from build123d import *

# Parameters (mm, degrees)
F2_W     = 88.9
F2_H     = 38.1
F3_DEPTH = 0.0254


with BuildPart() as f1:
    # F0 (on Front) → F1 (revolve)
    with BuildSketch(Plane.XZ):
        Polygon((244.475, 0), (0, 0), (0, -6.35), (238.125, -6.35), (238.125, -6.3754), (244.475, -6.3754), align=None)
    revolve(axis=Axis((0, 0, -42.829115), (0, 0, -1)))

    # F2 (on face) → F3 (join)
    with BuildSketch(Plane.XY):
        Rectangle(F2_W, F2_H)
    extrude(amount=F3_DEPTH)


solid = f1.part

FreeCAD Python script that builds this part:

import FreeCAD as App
import Part
import Sketcher

V = App.Vector
Q = App.Units.Quantity


def add_polygon(sketch, points):
    """Adds a closed chain of lines whose ends are joined by coincident constraints."""
    first, n = sketch.GeometryCount, len(points)
    for a, b in zip(points, points[1:] + points[:1]):
        sketch.addGeometry(Part.LineSegment(App.Vector(*a, 0), App.Vector(*b, 0)), False)
    for i in range(n):
        sketch.addConstraint(Sketcher.Constraint("Coincident", first + i, 2, first + (i + 1) % n, 1))

doc = App.newDocument("Part")
params = doc.addObject("Spreadsheet::Sheet", "Params")
for row, (alias, value) in enumerate([
    ("sketch1_width", "0.25 in"),
    ("sketch1_width2", "9.625 in"),
    ("sketch1_height", "0.001 in"),
    ("revolution_angle", "360 deg"),
    ("sketch2_width", "3.5 in"),
    ("sketch2_height", "1.5 in"),
    ("pad1_length", "0.001 in"),
], start=1):
    params.set(f"A{row}", alias)
    params.set(f"B{row}", "=" + value)
    params.setAlias(f"B{row}", alias)

body = doc.addObject("PartDesign::Body", "Body")

sketch1 = body.newObject("Sketcher::SketchObject", "Sketch")
sketch1.AttachmentSupport = (doc.getObject("XZ_Plane"), [""])
sketch1.MapMode = "FlatFace"
add_polygon(sketch1, [(244.475, 0), (0, 0), (0, -6.35), (238.125, -6.35), (238.125, -6.3754), (244.475, -6.3754)])
sketch1.addConstraint([
    Sketcher.Constraint("Horizontal", 0),
    Sketcher.Constraint("Vertical", 1),
    Sketcher.Constraint("Horizontal", 2),
    Sketcher.Constraint("Vertical", 3),
    Sketcher.Constraint("Horizontal", 4),
    Sketcher.Constraint("Vertical", 5),
    Sketcher.Constraint("Coincident", 0, 2, -1, 1),
    Sketcher.Constraint("Equal", 4, 1),
    Sketcher.Constraint("DistanceX", 4, 1, 4, 2, Q("0.25 in")),
    Sketcher.Constraint("DistanceX", 0, 2, 0, 1, Q("9.625 in")),
    Sketcher.Constraint("DistanceY", 3, 2, 3, 1, Q("0.001 in")),
])
sketch1.setExpression("Constraints[14]", "Params.sketch1_width")
sketch1.setExpression("Constraints[15]", "Params.sketch1_width2")
sketch1.setExpression("Constraints[16]", "Params.sketch1_height")
revolution = body.newObject("PartDesign::Revolution", "Revolution")
revolution.Profile = sketch1
revolution.ReferenceAxis = (sketch1, ["V_Axis"])
revolution.setExpression("Angle", "Params.revolution_angle")

sketch2 = body.newObject("Sketcher::SketchObject", "Sketch001")
sketch2.AttachmentSupport = (doc.getObject("XY_Plane"), [""])
sketch2.MapMode = "FlatFace"
add_polygon(sketch2, [(-44.45, 19.05), (-44.45, -19.05), (44.45, -19.05), (44.45, 19.05)])
sketch2.addConstraint([
    Sketcher.Constraint("Vertical", 0),
    Sketcher.Constraint("Horizontal", 1),
    Sketcher.Constraint("Vertical", 2),
    Sketcher.Constraint("Horizontal", 3),
    Sketcher.Constraint("Symmetric", 0, 2, 2, 2, -1, 1),
    Sketcher.Constraint("DistanceX", 1, 1, 1, 2, Q("3.5 in")),
    Sketcher.Constraint("DistanceY", 0, 2, 0, 1, Q("1.5 in")),
])
sketch2.setExpression("Constraints[9]", "Params.sketch2_width")
sketch2.setExpression("Constraints[10]", "Params.sketch2_height")
pad1 = body.newObject("PartDesign::Pad", "Pad")
pad1.Profile = sketch2
pad1.setExpression("Length", "Params.pad1_length")

doc.recompute()
